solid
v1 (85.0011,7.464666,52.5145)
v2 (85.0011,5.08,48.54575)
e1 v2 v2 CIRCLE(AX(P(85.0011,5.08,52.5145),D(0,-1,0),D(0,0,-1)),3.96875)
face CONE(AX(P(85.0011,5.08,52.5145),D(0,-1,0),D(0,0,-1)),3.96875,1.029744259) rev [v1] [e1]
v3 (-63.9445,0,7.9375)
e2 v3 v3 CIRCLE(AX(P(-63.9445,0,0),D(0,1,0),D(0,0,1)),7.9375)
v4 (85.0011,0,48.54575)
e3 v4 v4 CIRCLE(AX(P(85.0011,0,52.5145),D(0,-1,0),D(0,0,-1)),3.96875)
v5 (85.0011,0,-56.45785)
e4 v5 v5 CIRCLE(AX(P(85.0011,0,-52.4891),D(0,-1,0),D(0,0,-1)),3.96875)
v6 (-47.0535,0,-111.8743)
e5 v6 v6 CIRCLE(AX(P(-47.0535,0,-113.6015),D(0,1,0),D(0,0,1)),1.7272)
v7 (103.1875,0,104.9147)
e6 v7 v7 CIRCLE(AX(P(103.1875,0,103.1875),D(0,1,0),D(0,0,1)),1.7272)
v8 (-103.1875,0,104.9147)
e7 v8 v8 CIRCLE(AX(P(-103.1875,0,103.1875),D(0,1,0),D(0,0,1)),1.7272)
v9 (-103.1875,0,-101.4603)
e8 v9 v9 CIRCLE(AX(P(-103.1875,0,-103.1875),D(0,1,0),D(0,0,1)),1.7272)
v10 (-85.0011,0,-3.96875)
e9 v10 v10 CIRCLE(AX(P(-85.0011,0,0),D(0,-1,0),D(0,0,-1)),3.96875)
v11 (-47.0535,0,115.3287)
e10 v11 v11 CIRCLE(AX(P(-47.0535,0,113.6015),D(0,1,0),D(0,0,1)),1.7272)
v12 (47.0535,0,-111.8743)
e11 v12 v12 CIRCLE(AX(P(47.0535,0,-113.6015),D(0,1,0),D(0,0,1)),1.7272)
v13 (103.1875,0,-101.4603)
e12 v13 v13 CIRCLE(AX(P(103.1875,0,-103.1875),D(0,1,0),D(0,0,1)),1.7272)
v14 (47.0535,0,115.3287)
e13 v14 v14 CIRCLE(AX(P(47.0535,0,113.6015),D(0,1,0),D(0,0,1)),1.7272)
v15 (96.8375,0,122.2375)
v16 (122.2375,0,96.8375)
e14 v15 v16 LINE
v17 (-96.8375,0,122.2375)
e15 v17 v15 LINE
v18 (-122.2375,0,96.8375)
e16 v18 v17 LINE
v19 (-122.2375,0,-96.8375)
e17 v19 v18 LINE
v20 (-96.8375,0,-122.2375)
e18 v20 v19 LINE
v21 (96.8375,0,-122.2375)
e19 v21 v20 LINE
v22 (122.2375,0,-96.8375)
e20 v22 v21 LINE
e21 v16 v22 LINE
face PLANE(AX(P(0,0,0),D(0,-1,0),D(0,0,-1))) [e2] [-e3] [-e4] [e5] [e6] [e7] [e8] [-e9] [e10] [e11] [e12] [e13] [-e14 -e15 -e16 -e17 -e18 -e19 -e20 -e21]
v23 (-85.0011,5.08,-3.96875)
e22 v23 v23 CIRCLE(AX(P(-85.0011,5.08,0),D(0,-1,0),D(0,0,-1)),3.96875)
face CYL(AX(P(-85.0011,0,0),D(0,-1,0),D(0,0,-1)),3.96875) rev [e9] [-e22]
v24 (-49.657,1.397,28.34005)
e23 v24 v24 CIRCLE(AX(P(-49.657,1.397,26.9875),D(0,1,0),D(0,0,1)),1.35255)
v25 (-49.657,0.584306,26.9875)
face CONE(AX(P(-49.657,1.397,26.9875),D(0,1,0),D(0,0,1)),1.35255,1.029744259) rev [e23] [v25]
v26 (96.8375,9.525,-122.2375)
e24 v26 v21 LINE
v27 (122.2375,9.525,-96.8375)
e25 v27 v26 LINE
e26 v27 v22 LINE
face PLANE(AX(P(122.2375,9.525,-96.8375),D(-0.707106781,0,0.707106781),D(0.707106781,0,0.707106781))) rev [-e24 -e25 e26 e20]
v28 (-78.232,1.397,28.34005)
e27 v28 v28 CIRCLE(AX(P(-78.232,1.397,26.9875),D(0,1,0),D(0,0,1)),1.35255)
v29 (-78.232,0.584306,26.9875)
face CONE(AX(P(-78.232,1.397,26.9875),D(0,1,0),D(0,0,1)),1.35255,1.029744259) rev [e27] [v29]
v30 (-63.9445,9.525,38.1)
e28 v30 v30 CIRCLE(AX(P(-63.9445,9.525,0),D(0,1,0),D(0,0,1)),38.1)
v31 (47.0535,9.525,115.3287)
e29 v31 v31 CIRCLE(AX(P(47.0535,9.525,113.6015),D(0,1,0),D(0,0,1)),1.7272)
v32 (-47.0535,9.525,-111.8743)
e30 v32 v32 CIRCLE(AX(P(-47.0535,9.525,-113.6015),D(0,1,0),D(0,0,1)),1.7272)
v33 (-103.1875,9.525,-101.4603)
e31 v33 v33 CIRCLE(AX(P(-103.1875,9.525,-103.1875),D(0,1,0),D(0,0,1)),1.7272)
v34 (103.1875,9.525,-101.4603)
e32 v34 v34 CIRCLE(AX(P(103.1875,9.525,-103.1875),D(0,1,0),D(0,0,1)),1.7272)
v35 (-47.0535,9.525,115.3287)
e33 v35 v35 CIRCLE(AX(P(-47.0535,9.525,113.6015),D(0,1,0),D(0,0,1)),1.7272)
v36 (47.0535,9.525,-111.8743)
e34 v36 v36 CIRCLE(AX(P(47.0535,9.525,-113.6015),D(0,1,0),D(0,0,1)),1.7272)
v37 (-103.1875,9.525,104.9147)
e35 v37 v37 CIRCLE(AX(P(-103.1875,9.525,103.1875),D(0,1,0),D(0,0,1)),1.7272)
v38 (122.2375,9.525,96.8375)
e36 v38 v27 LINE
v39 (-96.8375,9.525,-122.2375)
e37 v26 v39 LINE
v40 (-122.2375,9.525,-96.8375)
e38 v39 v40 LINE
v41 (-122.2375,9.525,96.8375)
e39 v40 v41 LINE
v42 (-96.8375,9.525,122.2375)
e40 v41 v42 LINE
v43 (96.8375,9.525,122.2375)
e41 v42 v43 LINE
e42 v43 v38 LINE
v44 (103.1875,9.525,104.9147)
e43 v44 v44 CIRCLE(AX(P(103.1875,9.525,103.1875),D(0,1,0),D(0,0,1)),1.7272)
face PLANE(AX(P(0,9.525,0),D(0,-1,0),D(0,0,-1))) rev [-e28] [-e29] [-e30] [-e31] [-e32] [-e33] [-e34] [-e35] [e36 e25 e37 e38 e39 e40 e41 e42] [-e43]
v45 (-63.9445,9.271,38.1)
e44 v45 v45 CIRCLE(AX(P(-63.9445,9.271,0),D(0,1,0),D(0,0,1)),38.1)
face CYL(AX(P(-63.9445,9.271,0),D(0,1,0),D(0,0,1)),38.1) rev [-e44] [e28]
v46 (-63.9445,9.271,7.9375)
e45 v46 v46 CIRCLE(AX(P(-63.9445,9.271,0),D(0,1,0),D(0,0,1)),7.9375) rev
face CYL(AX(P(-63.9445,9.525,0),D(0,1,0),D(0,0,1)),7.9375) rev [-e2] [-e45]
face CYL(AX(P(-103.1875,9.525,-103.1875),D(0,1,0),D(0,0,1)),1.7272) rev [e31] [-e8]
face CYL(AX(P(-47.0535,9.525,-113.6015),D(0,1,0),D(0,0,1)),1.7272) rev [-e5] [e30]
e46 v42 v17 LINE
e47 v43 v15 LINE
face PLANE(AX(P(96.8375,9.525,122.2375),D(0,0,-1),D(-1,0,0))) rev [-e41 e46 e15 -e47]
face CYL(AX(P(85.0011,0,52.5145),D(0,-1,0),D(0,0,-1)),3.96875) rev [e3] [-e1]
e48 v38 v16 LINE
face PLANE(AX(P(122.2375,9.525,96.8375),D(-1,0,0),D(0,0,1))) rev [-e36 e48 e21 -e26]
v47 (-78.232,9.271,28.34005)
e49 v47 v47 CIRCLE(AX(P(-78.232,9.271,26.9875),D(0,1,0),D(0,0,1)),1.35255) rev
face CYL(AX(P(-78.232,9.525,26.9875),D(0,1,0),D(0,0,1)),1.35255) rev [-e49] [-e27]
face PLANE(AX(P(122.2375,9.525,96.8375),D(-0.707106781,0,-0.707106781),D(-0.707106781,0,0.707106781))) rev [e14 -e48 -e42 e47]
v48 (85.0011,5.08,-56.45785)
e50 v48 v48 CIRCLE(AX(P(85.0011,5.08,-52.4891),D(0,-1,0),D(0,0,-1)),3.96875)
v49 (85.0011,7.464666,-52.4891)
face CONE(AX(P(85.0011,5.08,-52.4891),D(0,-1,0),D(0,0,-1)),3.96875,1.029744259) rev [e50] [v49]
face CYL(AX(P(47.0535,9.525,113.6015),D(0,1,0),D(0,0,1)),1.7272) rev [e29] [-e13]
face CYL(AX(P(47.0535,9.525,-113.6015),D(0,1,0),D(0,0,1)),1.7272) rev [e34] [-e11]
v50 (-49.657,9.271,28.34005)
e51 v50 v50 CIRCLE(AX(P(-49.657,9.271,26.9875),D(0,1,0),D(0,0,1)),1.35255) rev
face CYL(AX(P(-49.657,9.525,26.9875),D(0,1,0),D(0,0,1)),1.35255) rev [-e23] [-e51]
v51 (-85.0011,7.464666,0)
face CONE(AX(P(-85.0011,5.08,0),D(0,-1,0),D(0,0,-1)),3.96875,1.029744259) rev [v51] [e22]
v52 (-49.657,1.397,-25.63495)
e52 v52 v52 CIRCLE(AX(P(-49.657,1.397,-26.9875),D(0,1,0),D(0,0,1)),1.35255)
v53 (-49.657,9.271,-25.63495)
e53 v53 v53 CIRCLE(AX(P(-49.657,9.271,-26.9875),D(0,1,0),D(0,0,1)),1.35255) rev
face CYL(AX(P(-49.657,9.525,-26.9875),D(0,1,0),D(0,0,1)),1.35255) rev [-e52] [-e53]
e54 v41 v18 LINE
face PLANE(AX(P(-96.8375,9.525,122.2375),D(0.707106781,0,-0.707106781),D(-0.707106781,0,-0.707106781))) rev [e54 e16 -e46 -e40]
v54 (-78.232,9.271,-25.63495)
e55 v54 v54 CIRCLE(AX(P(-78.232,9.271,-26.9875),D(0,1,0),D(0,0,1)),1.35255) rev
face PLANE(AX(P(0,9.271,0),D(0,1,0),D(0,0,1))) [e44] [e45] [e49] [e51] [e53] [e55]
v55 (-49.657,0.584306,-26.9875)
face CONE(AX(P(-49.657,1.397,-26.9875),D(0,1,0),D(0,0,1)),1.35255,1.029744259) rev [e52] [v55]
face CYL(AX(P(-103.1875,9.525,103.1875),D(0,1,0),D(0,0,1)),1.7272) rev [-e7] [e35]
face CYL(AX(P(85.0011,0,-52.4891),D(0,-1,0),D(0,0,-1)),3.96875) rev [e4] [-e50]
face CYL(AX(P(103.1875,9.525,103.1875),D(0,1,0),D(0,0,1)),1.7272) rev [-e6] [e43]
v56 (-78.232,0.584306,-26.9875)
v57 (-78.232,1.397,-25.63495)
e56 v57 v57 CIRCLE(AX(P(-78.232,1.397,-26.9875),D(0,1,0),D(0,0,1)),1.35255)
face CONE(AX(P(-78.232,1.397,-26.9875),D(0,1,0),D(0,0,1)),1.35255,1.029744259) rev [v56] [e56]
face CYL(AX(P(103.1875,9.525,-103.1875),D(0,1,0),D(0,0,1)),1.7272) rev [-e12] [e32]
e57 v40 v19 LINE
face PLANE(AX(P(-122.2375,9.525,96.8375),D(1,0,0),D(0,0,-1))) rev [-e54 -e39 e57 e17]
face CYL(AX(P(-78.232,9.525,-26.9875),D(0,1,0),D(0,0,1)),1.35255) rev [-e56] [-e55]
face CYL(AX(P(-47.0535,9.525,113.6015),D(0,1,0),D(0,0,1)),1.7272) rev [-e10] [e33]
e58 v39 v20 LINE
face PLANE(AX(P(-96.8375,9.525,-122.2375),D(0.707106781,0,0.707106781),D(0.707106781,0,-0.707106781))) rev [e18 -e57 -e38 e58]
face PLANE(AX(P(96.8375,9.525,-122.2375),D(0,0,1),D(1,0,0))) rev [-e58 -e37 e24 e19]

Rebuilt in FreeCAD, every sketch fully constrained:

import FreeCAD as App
import Part
import Sketcher
Q = App.Units.Quantity

doc = App.newDocument("Part")
body = doc.addObject("PartDesign::Body", "Body")

# Sketch on XZ plane
sketch1 = doc.addObject("Sketcher::SketchObject", "Sketch")
body.addObject(sketch1)
sketch1.AttachmentSupport = (doc.XZ_Plane, [""])
sketch1.MapMode = "FlatFace"
sketch1.addGeometry(Part.LineSegment(App.Vector(-97, -122, 0), App.Vector(-122, -97, 0)), False)
sketch1.addGeometry(Part.LineSegment(App.Vector(-122, -97, 0), App.Vector(-122, 97, 0)), False)
sketch1.addGeometry(Part.LineSegment(App.Vector(-122, 97, 0), App.Vector(-97, 122, 0)), False)
sketch1.addGeometry(Part.LineSegment(App.Vector(-97, 122, 0), App.Vector(97, 122, 0)), False)
sketch1.addGeometry(Part.LineSegment(App.Vector(97, 122, 0), App.Vector(122, 97, 0)), False)
sketch1.addGeometry(Part.LineSegment(App.Vector(122, 97, 0), App.Vector(122, -97, 0)), False)
sketch1.addGeometry(Part.LineSegment(App.Vector(122, -97, 0), App.Vector(97, -122, 0)), False)
sketch1.addGeometry(Part.LineSegment(App.Vector(97, -122, 0), App.Vector(-97, -122, 0)), False)
sketch1.addConstraint(Sketcher.Constraint("Coincident", 0, 2, 1, 1))
sketch1.addConstraint(Sketcher.Constraint("Coincident", 1, 2, 2, 1))
sketch1.addConstraint(Sketcher.Constraint("Coincident", 2, 2, 3, 1))
sketch1.addConstraint(Sketcher.Constraint("Coincident", 3, 2, 4, 1))
sketch1.addConstraint(Sketcher.Constraint("Coincident", 4, 2, 5, 1))
sketch1.addConstraint(Sketcher.Constraint("Coincident", 5, 2, 6, 1))
sketch1.addConstraint(Sketcher.Constraint("Coincident", 6, 2, 7, 1))
sketch1.addConstraint(Sketcher.Constraint("Coincident", 7, 2, 0, 1))
sketch1.addConstraint(Sketcher.Constraint("Vertical", 1))
sketch1.addConstraint(Sketcher.Constraint("Horizontal", 3))
sketch1.addConstraint(Sketcher.Constraint("Vertical", 5))
sketch1.addConstraint(Sketcher.Constraint("Horizontal", 7))
sketch1.addConstraint(Sketcher.Constraint("Symmetric", 0, 2, 4, 2, -1, 1))
sketch1.addConstraint(Sketcher.Constraint("Symmetric", 2, 2, 6, 2, -1, 1))
sketch1.addConstraint(Sketcher.Constraint("Perpendicular", 0, 2))
sketch1.addConstraint(Sketcher.Constraint("Perpendicular", 2, 4))
sketch1.addConstraint(Sketcher.Constraint("Perpendicular", 4, 6))
sketch1.addConstraint(Sketcher.Constraint("Horizontal", 1, 2, 4, 2))
sketch1.addConstraint(Sketcher.Constraint("Vertical", 3, 2, 6, 2))
sketch1.addConstraint(Sketcher.Constraint("Equal", 7, 1))
sketch1.addConstraint(Sketcher.Constraint("DistanceX", 1, 2, 2, 2, Q("1 in")))
sketch1.addConstraint(Sketcher.Constraint("DistanceX", 3, 1, 3, 2, Q("7.625 in")))
pad1 = doc.addObject("PartDesign::Pad", "Pad")
body.addObject(pad1)
pad1.Profile = sketch1
pad1.Length = Q("0.375 in")
pad1.Reversed = True

# Sketch on XZ plane
sketch2 = doc.addObject("Sketcher::SketchObject", "Sketch001")
body.addObject(sketch2)
sketch2.AttachmentSupport = (doc.XZ_Plane, [""])
sketch2.MapMode = "FlatFace"
sketch2.AttachmentOffset = App.Placement(App.Vector(0, 0, -0.375 * 25.4), App.Rotation())
sketch2.addGeometry(Part.Circle(App.Vector(-47.1, -113.6, 0), App.Vector(0, 0, 1), 1.7), False)
sketch2.addGeometry(Part.Circle(App.Vector(47.1, -113.6, 0), App.Vector(0, 0, 1), 1.7), False)
sketch2.addGeometry(Part.Circle(App.Vector(47.1, 113.6, 0), App.Vector(0, 0, 1), 1.7), False)
sketch2.addGeometry(Part.Circle(App.Vector(-47.1, 113.6, 0), App.Vector(0, 0, 1), 1.7), False)
sketch2.addConstraint(Sketcher.Constraint("Equal", 0, 1))
sketch2.addConstraint(Sketcher.Constraint("Equal", 1, 2))
sketch2.addConstraint(Sketcher.Constraint("Equal", 2, 3))
sketch2.addConstraint(Sketcher.Constraint("Symmetric", 0, 3, 2, 3, -1, 1))
sketch2.addConstraint(Sketcher.Constraint("Symmetric", 1, 3, 3, 3, -1, 1))
sketch2.addConstraint(Sketcher.Constraint("Symmetric", 0, 3, 1, 3, -2))
sketch2.addConstraint(Sketcher.Constraint("Diameter", 0, Q("0.136 in")))
sketch2.addConstraint(Sketcher.Constraint("DistanceX", 0, 3, 1, 3, Q("3.705 in")))
sketch2.addConstraint(Sketcher.Constraint("DistanceY", 1, 3, 2, 3, Q("8.945 in")))
doc.recompute()
hole = doc.addObject("PartDesign::Hole", "Hole")
body.addObject(hole)
hole.Profile = sketch2
hole.ThreadType = "None"
hole.Diameter = Q("0.136 in")
hole.DepthType = "ThroughAll"
hole.Reversed = True

# Sketch on XZ plane
sketch3 = doc.addObject("Sketcher::SketchObject", "Sketch002")
body.addObject(sketch3)
sketch3.AttachmentSupport = (doc.XZ_Plane, [""])
sketch3.MapMode = "FlatFace"
sketch3.AttachmentOffset = App.Placement(App.Vector(0, 0, -0.375 * 25.4), App.Rotation())
sketch3.addGeometry(Part.Circle(App.Vector(-64, 0, 0), App.Vector(0, 0, 1), 8), False)
sketch3.addConstraint(Sketcher.Constraint("PointOnObject", 0, 3, -1))
sketch3.addConstraint(Sketcher.Constraint("Diameter", 0, Q("0.625 in")))
sketch3.addConstraint(Sketcher.Constraint("DistanceX", 0, 3, -1, 1, Q("2.5175 in")))
doc.recompute()
hole2 = doc.addObject("PartDesign::Hole", "Hole001")
body.addObject(hole2)
hole2.Profile = sketch3
hole2.ThreadType = "None"
hole2.Diameter = Q("0.625 in")
hole2.DepthType = "ThroughAll"
hole2.Reversed = True

# Sketch on XZ plane
sketch4 = doc.addObject("Sketcher::SketchObject", "Sketch003")
body.addObject(sketch4)
sketch4.AttachmentSupport = (doc.XZ_Plane, [""])
sketch4.MapMode = "FlatFace"
sketch4.AttachmentOffset = App.Placement(App.Vector(0, 0, -0.375 * 25.4), App.Rotation())
sketch4.addGeometry(Part.Circle(App.Vector(-78.2, 27, 0), App.Vector(0, 0, 1), 1.4), False)
sketch4.addGeometry(Part.Circle(App.Vector(-49.7, 27, 0), App.Vector(0, 0, 1), 1.4), False)
sketch4.addGeometry(Part.Circle(App.Vector(-49.7, -27, 0), App.Vector(0, 0, 1), 1.4), False)
sketch4.addGeometry(Part.Circle(App.Vector(-78.2, -27, 0), App.Vector(0, 0, 1), 1.4), False)
sketch4.addConstraint(Sketcher.Constraint("Equal", 0, 1))
sketch4.addConstraint(Sketcher.Constraint("Equal", 1, 2))
sketch4.addConstraint(Sketcher.Constraint("Equal", 2, 3))
sketch4.addConstraint(Sketcher.Constraint("Symmetric", 1, 3, 2, 3, -1))
sketch4.addConstraint(Sketcher.Constraint("Symmetric", 0, 3, 3, 3, -1))
sketch4.addConstraint(Sketcher.Constraint("Horizontal", 0, 3, 1, 3))
sketch4.addConstraint(Sketcher.Constraint("Diameter", 0, Q("0.1065 in")))
sketch4.addConstraint(Sketcher.Constraint("DistanceX", 0, 3, -1, 1, Q("3.08 in")))
sketch4.addConstraint(Sketcher.Constraint("DistanceY", -1, 1, 0, 3, Q("1.0625 in")))
sketch4.addConstraint(Sketcher.Constraint("DistanceX", 1, 3, -1, 1, Q("1.955 in")))
doc.recompute()
hole3 = doc.addObject("PartDesign::Hole", "Hole002")
body.addObject(hole3)
hole3.Profile = sketch4
hole3.ThreadType = "None"
hole3.Diameter = Q("0.1065 in")
hole3.DepthType = "Dimension"
hole3.Depth = Q("0.32 in")
hole3.DrillPoint = "Angled"
hole3.DrillPointAngle = 118
hole3.Reversed = True

# Sketch on XZ plane
sketch5 = doc.addObject("Sketcher::SketchObject", "Sketch004")
body.addObject(sketch5)
sketch5.AttachmentSupport = (doc.XZ_Plane, [""])
sketch5.MapMode = "FlatFace"
sketch5.AttachmentOffset = App.Placement(App.Vector(0, 0, -0.375 * 25.4), App.Rotation())
sketch5.addGeometry(Part.Circle(App.Vector(-63.9, 0, 0), App.Vector(0, 0, 1), 38.1), False)
sketch5.addGeometry(Part.Circle(App.Vector(-78.2, -27, 0), App.Vector(0, 0, 1), 1.4), False)
sketch5.addGeometry(Part.Circle(App.Vector(-78.2, 27, 0), App.Vector(0, 0, 1), 1.4), False)
sketch5.addGeometry(Part.Circle(App.Vector(-63.9, 0, 0), App.Vector(0, 0, 1), 7.9), False)
sketch5.addGeometry(Part.Circle(App.Vector(-49.7, -27, 0), App.Vector(0, 0, 1), 1.4), False)
sketch5.addGeometry(Part.Circle(App.Vector(-49.7, 27, 0), App.Vector(0, 0, 1), 1.4), False)
sketch5.addConstraint(Sketcher.Constraint("Coincident", 3, 3, 0, 3))
sketch5.addConstraint(Sketcher.Constraint("Equal", 1, 2))
sketch5.addConstraint(Sketcher.Constraint("Equal", 2, 4))
sketch5.addConstraint(Sketcher.Constraint("Equal", 4, 5))
sketch5.addConstraint(Sketcher.Constraint("Symmetric", 1, 3, 2, 3, -1))
sketch5.addConstraint(Sketcher.Constraint("Symmetric", 4, 3, 5, 3, -1))
sketch5.addConstraint(Sketcher.Constraint("PointOnObject", 0, 3, -1))
sketch5.addConstraint(Sketcher.Constraint("Horizontal", 1, 3, 4, 3))
sketch5.addConstraint(Sketcher.Constraint("Diameter", 0, Q("3 in")))
sketch5.addConstraint(Sketcher.Constraint("Diameter", 3, Q("0.625 in")))
sketch5.addConstraint(Sketcher.Constraint("Diameter", 1, Q("0.1065 in")))
sketch5.addConstraint(Sketcher.Constraint("DistanceX", 1, 3, -1, 1, Q("3.08 in")))
sketch5.addConstraint(Sketcher.Constraint("DistanceY", 1, 3, -1, 1, Q("1.0625 in")))
sketch5.addConstraint(Sketcher.Constraint("DistanceX", 4, 3, -1, 1, Q("1.955 in")))
sketch5.addConstraint(Sketcher.Constraint("DistanceX", 1, 3, 0, 3, Q("0.5625 in")))
pocket1 = doc.addObject("PartDesign::Pocket", "Pocket")
body.addObject(pocket1)
pocket1.Profile = sketch5
pocket1.Length = Q("0.01 in")
pocket1.Reversed = True

# Sketch on XZ plane
sketch6 = doc.addObject("Sketcher::SketchObject", "Sketch005")
body.addObject(sketch6)
sketch6.AttachmentSupport = (doc.XZ_Plane, [""])
sketch6.MapMode = "FlatFace"
sketch6.AttachmentOffset = App.Placement(App.Vector(0, 0, -0.375 * 25.4), App.Rotation())
sketch6.addGeometry(Part.Circle(App.Vector(-103.2, -103.2, 0), App.Vector(0, 0, 1), 1.7), False)
sketch6.addGeometry(Part.Circle(App.Vector(103.2, -103.2, 0), App.Vector(0, 0, 1), 1.7), False)
sketch6.addGeometry(Part.Circle(App.Vector(103.2, 103.2, 0), App.Vector(0, 0, 1), 1.7), False)
sketch6.addGeometry(Part.Circle(App.Vector(-103.2, 103.2, 0), App.Vector(0, 0, 1), 1.7), False)
sketch6.addConstraint(Sketcher.Constraint("Equal", 0, 1))
sketch6.addConstraint(Sketcher.Constraint("Equal", 1, 2))
sketch6.addConstraint(Sketcher.Constraint("Equal", 2, 3))
sketch6.addConstraint(Sketcher.Constraint("Symmetric", 0, 3, 2, 3, -1, 1))
sketch6.addConstraint(Sketcher.Constraint("Symmetric", 1, 3, 3, 3, -1, 1))
sketch6.addConstraint(Sketcher.Constraint("Symmetric", 0, 3, 1, 3, -2))
sketch6.addConstraint(Sketcher.Constraint("Diameter", 0, Q("0.136 in")))
sketch6.addConstraint(Sketcher.Constraint("DistanceX", 0, 3, -1, 1, Q("4.0625 in")))
sketch6.addConstraint(Sketcher.Constraint("DistanceY", 0, 3, -1, 1, Q("4.0625 in")))
doc.recompute()
hole4 = doc.addObject("PartDesign::Hole", "Hole003")
body.addObject(hole4)
hole4.Profile = sketch6
hole4.ThreadType = "None"
hole4.Diameter = Q("0.136 in")
hole4.DepthType = "ThroughAll"
hole4.Reversed = True

# Sketch on XZ plane
sketch7 = doc.addObject("Sketcher::SketchObject", "Sketch006")
body.addObject(sketch7)
sketch7.AttachmentSupport = (doc.XZ_Plane, [""])
sketch7.MapMode = "FlatFace"
sketch7.addGeometry(Part.Circle(App.Vector(-85, 0, 0), App.Vector(0, 0, 1), 4), False)
sketch7.addGeometry(Part.Circle(App.Vector(85, 52.5, 0), App.Vector(0, 0, 1), 4), False)
sketch7.addGeometry(Part.Circle(App.Vector(85, -52.5, 0), App.Vector(0, 0, 1), 4), False)
sketch7.addConstraint(Sketcher.Constraint("Equal", 0, 1))
sketch7.addConstraint(Sketcher.Constraint("Equal", 1, 2))
sketch7.addConstraint(Sketcher.Constraint("PointOnObject", 0, 3, -1))
sketch7.addConstraint(Sketcher.Constraint("Vertical", 1, 3, 2, 3))
sketch7.addConstraint(Sketcher.Constraint("Diameter", 0, Q("0.3125 in")))
sketch7.addConstraint(Sketcher.Constraint("DistanceX", 0, 3, 1, 3, Q("6.693 in")))
sketch7.addConstraint(Sketcher.Constraint("DistanceY", 2, 3, 1, 3, Q("4.134 in")))
sketch7.addConstraint(Sketcher.Constraint("DistanceX", 0, 3, -1, 1, Q("3.3465 in")))
sketch7.addConstraint(Sketcher.Constraint("DistanceY", -1, 1, 1, 3, Q("2.0675 in")))
doc.recompute()
hole5 = doc.addObject("PartDesign::Hole", "Hole004")
body.addObject(hole5)
hole5.Profile = sketch7
hole5.ThreadType = "None"
hole5.Diameter = Q("0.3125 in")
hole5.DepthType = "Dimension"
hole5.Depth = Q("0.2 in")
hole5.DrillPoint = "Angled"
hole5.DrillPointAngle = 118

doc.recompute()
